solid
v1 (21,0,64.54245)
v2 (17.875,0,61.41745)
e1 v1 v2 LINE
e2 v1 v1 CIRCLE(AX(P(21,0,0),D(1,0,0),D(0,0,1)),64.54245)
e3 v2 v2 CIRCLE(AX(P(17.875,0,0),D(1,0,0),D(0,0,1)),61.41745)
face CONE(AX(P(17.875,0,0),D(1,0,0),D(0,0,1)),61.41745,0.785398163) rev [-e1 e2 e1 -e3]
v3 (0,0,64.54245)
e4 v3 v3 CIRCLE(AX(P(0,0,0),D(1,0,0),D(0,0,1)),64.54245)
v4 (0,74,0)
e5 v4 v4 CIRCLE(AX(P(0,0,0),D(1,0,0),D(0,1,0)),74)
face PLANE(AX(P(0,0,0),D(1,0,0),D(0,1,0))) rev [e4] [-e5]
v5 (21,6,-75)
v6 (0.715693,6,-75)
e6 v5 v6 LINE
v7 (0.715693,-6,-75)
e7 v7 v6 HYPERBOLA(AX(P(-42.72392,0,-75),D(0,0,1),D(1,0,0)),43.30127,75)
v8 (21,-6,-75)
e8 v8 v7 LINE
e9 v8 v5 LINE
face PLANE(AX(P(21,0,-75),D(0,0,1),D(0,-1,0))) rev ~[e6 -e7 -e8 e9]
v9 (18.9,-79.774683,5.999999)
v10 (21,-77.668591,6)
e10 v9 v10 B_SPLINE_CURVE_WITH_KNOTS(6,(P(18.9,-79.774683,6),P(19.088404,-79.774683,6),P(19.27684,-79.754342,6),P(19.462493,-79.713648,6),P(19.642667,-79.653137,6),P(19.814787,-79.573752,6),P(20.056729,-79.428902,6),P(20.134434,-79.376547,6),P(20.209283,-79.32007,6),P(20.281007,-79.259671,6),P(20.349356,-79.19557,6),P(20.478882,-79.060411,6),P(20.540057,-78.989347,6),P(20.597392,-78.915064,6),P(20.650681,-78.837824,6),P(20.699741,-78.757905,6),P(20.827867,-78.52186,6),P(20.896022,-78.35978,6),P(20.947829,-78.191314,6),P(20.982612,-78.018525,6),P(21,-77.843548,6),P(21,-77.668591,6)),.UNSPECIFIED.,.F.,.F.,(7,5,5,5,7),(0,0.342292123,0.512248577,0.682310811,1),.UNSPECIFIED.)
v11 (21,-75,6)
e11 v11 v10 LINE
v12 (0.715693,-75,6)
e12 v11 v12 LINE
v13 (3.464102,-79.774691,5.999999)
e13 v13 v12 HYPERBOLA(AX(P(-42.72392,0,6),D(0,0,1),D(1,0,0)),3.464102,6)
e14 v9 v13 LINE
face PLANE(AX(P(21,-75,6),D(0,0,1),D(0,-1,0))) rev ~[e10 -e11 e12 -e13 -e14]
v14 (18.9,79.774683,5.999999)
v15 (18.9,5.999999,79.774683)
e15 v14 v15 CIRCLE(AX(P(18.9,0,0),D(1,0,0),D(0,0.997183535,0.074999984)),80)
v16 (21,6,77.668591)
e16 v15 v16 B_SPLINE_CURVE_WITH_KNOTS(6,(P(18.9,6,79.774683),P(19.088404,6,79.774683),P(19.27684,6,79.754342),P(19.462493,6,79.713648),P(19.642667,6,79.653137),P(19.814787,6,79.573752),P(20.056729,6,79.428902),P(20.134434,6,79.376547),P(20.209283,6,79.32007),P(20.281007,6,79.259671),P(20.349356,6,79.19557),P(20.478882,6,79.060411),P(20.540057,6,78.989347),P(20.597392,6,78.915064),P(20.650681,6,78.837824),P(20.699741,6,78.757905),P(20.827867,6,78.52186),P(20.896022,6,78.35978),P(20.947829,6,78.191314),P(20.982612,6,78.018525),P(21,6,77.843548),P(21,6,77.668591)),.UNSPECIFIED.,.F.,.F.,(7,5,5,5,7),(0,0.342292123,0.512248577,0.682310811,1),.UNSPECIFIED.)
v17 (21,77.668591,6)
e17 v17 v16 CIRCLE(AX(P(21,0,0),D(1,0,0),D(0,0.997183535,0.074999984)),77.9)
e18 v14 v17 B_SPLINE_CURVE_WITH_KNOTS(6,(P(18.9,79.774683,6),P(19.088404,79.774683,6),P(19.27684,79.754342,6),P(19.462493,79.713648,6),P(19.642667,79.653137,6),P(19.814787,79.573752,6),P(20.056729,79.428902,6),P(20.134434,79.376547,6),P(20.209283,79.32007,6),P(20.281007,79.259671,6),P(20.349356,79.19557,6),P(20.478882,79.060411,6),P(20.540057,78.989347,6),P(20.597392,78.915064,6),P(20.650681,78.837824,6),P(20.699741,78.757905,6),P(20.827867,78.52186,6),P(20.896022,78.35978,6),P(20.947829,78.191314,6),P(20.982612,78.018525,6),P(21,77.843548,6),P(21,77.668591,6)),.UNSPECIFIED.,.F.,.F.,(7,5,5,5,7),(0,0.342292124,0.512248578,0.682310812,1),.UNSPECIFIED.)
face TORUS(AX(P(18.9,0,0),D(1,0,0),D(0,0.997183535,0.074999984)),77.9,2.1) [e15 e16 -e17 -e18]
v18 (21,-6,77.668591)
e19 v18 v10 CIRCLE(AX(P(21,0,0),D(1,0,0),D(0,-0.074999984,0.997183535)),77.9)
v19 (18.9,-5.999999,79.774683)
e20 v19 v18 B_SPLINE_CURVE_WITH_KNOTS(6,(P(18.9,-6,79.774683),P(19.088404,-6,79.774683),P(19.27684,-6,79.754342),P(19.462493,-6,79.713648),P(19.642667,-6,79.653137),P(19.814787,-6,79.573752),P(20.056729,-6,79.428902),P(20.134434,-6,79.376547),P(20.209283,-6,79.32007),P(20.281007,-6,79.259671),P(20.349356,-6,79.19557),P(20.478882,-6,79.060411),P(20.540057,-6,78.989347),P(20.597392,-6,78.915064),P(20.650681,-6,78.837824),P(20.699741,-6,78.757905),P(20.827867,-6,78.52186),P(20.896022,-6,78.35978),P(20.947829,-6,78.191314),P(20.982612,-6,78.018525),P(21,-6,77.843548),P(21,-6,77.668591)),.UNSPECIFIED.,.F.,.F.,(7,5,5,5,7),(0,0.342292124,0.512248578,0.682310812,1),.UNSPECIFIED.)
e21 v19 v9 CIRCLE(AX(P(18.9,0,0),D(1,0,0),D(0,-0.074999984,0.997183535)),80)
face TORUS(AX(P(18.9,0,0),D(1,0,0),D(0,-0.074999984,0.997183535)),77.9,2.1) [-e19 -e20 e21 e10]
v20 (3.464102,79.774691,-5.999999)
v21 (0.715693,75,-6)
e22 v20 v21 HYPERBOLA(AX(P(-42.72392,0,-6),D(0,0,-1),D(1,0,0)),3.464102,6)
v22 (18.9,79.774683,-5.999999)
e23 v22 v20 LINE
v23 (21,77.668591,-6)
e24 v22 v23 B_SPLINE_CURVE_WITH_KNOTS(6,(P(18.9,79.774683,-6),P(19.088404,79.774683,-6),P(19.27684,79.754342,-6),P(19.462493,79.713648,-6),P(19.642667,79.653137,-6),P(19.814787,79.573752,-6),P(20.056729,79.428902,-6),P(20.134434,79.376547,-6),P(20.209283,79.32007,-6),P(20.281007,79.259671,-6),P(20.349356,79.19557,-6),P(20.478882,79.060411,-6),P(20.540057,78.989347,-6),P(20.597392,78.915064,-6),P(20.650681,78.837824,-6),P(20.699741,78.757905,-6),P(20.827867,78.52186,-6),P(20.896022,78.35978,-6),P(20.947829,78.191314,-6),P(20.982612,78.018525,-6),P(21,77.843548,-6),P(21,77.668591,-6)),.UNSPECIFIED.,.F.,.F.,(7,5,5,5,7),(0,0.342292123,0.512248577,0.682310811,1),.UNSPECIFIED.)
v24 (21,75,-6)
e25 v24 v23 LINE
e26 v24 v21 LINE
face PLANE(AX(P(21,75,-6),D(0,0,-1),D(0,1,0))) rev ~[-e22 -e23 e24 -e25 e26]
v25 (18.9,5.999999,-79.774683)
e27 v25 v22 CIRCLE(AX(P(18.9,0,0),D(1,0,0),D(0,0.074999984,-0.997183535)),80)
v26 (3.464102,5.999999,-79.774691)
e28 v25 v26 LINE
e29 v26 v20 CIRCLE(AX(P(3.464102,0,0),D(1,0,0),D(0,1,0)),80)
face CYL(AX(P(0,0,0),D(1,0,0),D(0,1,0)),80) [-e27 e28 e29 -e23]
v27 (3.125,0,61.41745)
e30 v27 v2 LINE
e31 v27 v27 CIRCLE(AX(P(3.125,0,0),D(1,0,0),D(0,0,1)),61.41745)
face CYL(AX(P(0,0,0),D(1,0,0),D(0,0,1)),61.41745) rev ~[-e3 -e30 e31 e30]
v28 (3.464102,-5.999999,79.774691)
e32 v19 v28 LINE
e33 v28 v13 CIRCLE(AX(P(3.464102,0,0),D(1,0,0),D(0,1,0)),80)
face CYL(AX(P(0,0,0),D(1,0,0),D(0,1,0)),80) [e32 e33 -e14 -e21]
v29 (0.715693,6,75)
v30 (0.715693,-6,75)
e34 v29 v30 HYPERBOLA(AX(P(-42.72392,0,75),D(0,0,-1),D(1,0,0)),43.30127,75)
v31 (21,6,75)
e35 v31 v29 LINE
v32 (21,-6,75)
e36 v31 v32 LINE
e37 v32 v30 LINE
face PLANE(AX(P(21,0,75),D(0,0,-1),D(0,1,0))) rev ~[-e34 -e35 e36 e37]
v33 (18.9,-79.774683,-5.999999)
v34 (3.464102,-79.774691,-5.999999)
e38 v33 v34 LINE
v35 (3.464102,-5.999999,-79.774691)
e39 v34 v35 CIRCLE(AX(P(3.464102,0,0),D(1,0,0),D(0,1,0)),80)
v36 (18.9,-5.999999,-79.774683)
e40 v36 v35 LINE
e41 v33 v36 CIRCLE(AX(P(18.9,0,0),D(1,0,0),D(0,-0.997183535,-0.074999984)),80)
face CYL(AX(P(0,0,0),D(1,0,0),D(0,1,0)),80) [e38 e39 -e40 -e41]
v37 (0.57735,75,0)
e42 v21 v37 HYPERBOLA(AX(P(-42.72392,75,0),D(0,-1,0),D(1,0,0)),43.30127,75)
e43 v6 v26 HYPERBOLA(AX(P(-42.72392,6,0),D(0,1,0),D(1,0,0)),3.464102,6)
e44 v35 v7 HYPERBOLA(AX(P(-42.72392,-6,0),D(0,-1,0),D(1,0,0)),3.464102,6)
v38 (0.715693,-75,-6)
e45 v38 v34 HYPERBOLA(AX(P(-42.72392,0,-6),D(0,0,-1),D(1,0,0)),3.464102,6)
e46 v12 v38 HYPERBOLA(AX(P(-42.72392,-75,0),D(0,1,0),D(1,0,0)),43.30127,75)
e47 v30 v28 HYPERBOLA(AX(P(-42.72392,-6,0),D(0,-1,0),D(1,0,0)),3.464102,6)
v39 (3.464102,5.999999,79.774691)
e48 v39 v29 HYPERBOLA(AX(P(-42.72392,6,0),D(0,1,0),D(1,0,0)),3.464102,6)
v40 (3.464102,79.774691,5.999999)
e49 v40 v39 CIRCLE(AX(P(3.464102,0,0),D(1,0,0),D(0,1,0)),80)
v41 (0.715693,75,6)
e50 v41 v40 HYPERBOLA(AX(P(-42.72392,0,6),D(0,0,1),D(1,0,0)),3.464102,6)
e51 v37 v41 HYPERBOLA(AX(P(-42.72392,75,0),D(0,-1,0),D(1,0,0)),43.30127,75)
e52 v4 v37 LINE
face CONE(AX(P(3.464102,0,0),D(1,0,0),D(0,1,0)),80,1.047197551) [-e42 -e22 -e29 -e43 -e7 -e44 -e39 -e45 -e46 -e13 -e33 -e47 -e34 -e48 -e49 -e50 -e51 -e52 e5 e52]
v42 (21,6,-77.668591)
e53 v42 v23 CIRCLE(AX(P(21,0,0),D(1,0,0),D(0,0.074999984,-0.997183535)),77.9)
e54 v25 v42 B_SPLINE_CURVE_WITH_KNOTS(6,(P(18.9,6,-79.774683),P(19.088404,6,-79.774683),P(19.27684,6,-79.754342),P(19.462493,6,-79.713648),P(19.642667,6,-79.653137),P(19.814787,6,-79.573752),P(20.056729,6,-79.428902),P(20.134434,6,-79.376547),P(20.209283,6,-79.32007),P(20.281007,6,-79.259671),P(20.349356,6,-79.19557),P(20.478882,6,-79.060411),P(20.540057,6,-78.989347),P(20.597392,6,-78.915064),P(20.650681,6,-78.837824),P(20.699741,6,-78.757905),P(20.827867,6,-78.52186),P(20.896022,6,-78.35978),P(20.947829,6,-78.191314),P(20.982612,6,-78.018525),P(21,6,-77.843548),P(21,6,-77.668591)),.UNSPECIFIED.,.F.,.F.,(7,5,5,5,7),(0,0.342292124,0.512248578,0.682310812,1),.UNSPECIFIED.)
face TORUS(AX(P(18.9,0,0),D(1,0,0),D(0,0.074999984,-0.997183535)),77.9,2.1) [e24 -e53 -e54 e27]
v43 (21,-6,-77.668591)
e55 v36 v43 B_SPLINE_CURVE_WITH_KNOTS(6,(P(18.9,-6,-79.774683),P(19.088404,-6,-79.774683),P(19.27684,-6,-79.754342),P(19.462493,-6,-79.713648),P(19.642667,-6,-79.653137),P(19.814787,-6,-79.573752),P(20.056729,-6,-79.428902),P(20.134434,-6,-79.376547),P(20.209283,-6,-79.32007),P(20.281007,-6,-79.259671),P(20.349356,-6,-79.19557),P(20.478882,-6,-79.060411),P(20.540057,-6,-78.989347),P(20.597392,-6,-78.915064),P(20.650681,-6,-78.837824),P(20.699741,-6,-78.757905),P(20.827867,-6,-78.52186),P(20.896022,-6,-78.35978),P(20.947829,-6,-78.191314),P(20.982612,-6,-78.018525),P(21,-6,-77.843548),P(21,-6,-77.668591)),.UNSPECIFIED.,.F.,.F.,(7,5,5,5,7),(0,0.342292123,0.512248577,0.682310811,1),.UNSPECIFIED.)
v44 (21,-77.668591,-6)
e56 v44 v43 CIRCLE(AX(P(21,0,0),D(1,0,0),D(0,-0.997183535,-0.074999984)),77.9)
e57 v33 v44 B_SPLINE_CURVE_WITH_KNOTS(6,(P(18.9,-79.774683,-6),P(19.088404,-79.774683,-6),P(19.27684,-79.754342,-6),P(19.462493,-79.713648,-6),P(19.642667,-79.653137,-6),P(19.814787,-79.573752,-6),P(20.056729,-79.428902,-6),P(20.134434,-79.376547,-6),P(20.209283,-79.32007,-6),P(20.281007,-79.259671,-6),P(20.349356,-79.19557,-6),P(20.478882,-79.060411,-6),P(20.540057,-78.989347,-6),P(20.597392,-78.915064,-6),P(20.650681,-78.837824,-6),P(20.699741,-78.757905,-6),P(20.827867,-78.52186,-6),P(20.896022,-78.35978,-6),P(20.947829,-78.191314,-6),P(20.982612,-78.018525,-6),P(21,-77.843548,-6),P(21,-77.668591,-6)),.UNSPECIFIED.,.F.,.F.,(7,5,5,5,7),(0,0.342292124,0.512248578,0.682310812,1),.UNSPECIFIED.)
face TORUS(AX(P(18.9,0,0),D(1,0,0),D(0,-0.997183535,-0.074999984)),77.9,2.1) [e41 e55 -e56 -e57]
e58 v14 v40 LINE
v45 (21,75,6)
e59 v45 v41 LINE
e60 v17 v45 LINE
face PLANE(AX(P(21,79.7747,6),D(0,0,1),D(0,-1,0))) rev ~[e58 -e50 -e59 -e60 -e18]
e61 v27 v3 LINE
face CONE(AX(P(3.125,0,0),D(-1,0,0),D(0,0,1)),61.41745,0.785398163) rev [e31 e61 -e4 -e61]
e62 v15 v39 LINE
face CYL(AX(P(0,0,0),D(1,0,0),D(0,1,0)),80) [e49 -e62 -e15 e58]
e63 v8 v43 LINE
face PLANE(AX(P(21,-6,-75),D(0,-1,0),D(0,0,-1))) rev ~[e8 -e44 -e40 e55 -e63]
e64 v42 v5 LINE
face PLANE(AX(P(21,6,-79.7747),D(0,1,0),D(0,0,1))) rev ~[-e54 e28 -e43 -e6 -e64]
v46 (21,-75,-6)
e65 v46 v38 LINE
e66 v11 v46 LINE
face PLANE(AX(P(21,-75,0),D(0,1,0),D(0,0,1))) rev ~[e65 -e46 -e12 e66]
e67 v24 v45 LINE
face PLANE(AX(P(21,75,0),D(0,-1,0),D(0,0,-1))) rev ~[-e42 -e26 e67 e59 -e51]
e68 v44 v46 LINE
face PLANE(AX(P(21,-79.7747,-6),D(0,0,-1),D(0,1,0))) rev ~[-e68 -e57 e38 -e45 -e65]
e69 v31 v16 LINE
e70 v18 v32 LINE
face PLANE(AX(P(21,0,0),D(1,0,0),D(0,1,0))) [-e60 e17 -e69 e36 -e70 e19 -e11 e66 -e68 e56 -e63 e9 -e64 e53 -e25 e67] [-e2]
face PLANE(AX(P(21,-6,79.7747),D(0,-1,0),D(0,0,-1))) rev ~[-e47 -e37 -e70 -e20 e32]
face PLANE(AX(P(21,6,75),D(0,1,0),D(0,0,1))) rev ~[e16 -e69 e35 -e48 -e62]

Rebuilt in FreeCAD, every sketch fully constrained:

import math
import FreeCAD as App
import Part
import Sketcher

V = App.Vector
Q = App.Units.Quantity


def edges_at(feature, points):
    """Names of the edges that pass closest to the given points."""
    edges = feature.Shape.Edges
    near = lambda p: min(range(len(edges)), key=lambda i: edges[i].distToShape(Part.Vertex(*p))[0])
    return sorted({f"Edge{near(p) + 1}" for p in points})


def add_polygon(sketch, points):
    """Adds a closed chain of lines whose ends are joined by coincident constraints."""
    first, n = sketch.GeometryCount, len(points)
    for a, b in zip(points, points[1:] + points[:1]):
        sketch.addGeometry(Part.LineSegment(App.Vector(*a, 0), App.Vector(*b, 0)), False)
    for i in range(n):
        sketch.addConstraint(Sketcher.Constraint("Coincident", first + i, 2, first + (i + 1) % n, 1))

doc = App.newDocument("Part")
body = doc.addObject("PartDesign::Body", "Body")

sketch1 = body.newObject("Sketcher::SketchObject", "Sketch")
sketch1.AttachmentSupport = (doc.getObject("XY_Plane"), [""])
sketch1.MapMode = "FlatFace"
add_polygon(sketch1, [(0, 80), (0, 0), (21, 0), (21, 80)])
sketch1.addConstraint([
    Sketcher.Constraint("Vertical", 0),
    Sketcher.Constraint("Horizontal", 1),
    Sketcher.Constraint("Vertical", 2),
    Sketcher.Constraint("Horizontal", 3),
    Sketcher.Constraint("Coincident", 0, 2, -1, 1),
    Sketcher.Constraint("DistanceX", 1, 1, 1, 2, Q("21 mm")),
    Sketcher.Constraint("DistanceY", 0, 2, 0, 1, Q("80 mm")),
])
revolution = body.newObject("PartDesign::Revolution", "Revolution")
revolution.Profile = sketch1
revolution.ReferenceAxis = (sketch1, ["H_Axis"])
revolution.Angle = 360

sketch2 = body.newObject("Sketcher::SketchObject", "Sketch001")
sketch2.AttachmentSupport = (doc.getObject("YZ_Plane"), [""])
sketch2.MapMode = "FlatFace"
sketch2.addGeometry(Part.Circle(V(0, 0, 0), V(0, 0, 1), 61.41745), False)
sketch2.addConstraint([
    Sketcher.Constraint("Coincident", 0, 3, -1, 1),
    Sketcher.Constraint("Diameter", 0, Q("122.835 mm")),
])
doc.recompute()
hole = body.newObject("PartDesign::Hole", "Hole")
hole.Profile = sketch2
hole.ThreadType = "None"
hole.Diameter = 122.8349
hole.DepthType = "ThroughAll"
hole.Reversed = True
doc.recompute()

chamfer = body.newObject("PartDesign::Chamfer", "Chamfer")
chamfer.Base = (hole, edges_at(hole, [(0, -80, 0)]))
chamfer.ChamferType = "Distance and Angle"
chamfer.Size = 6
chamfer.Angle = 30

sketch3 = body.newObject("Sketcher::SketchObject", "Sketch002")
sketch3.AttachmentSupport = (doc.getObject("YZ_Plane"), [""])
sketch3.MapMode = "FlatFace"
sketch3.AttachmentOffset = App.Placement(V(0, 0, 21), App.Rotation())
sketch3.addGeometry([
    Part.LineSegment(V(75, -6, 0), V(79.7747, -6, 0)),
    Part.ArcOfCircle(Part.Circle(V(0, 0, 0), V(0, 0, 1), 80), math.radians(-4.301221), math.radians(4.301221)),
    Part.LineSegment(V(79.7747, 6, 0), V(75, 6, 0)),
    Part.LineSegment(V(75, 6, 0), V(75, -6, 0)),
], False)
sketch3.addConstraint([
    Sketcher.Constraint("Coincident", 0, 2, 1, 1),
    Sketcher.Constraint("Coincident", 1, 2, 2, 1),
    Sketcher.Constraint("Coincident", 2, 2, 3, 1),
    Sketcher.Constraint("Coincident", 3, 2, 0, 1),
    Sketcher.Constraint("Horizontal", 0),
    Sketcher.Constraint("Horizontal", 2),
    Sketcher.Constraint("Vertical", 3),
    Sketcher.Constraint("Coincident", 1, 3, -1, 1),
    Sketcher.Constraint("Vertical", 0, 2, 1, 2),
    Sketcher.Constraint("DistanceY", 0, 2, -1, 1, Q("6 mm")),
    Sketcher.Constraint("DistanceX", -1, 1, 2, 2, Q("75 mm")),
    Sketcher.Constraint("Radius", 1, Q("80 mm")),
])
pocket1 = body.newObject("PartDesign::Pocket", "Pocket")
pocket1.Profile = sketch3
pocket1.Type = "ThroughAll"
doc.recompute()

polarpattern = body.newObject("PartDesign::PolarPattern", "PolarPattern")
polarpattern.Originals = [pocket1]
polarpattern.Axis = (doc.getObject("X_Axis"), [""])
polarpattern.Angle = 360
polarpattern.Occurrences = 4
body.Tip = polarpattern
doc.recompute()

fillet = body.newObject("PartDesign::Fillet", "Fillet")
fillet.Base = (polarpattern, edges_at(polarpattern, [
    (21, 56.569, 56.569),
    (21, 56.569, -56.569),
    (21, -56.569, -56.569),
    (21, -56.569, 56.569),
]))
fillet.Radius = 2.1
doc.recompute()

chamfer2 = body.newObject("PartDesign::Chamfer", "Chamfer001")
chamfer2.Base = (fillet, edges_at(fillet, [(21, 0, -61.417)]))
chamfer2.Size = 3.125
doc.recompute()

chamfer3 = body.newObject("PartDesign::Chamfer", "Chamfer002")
chamfer3.Base = (chamfer2, edges_at(chamfer2, [(0, 0, -61.417)]))
chamfer3.Size = 3.125

doc.recompute()
